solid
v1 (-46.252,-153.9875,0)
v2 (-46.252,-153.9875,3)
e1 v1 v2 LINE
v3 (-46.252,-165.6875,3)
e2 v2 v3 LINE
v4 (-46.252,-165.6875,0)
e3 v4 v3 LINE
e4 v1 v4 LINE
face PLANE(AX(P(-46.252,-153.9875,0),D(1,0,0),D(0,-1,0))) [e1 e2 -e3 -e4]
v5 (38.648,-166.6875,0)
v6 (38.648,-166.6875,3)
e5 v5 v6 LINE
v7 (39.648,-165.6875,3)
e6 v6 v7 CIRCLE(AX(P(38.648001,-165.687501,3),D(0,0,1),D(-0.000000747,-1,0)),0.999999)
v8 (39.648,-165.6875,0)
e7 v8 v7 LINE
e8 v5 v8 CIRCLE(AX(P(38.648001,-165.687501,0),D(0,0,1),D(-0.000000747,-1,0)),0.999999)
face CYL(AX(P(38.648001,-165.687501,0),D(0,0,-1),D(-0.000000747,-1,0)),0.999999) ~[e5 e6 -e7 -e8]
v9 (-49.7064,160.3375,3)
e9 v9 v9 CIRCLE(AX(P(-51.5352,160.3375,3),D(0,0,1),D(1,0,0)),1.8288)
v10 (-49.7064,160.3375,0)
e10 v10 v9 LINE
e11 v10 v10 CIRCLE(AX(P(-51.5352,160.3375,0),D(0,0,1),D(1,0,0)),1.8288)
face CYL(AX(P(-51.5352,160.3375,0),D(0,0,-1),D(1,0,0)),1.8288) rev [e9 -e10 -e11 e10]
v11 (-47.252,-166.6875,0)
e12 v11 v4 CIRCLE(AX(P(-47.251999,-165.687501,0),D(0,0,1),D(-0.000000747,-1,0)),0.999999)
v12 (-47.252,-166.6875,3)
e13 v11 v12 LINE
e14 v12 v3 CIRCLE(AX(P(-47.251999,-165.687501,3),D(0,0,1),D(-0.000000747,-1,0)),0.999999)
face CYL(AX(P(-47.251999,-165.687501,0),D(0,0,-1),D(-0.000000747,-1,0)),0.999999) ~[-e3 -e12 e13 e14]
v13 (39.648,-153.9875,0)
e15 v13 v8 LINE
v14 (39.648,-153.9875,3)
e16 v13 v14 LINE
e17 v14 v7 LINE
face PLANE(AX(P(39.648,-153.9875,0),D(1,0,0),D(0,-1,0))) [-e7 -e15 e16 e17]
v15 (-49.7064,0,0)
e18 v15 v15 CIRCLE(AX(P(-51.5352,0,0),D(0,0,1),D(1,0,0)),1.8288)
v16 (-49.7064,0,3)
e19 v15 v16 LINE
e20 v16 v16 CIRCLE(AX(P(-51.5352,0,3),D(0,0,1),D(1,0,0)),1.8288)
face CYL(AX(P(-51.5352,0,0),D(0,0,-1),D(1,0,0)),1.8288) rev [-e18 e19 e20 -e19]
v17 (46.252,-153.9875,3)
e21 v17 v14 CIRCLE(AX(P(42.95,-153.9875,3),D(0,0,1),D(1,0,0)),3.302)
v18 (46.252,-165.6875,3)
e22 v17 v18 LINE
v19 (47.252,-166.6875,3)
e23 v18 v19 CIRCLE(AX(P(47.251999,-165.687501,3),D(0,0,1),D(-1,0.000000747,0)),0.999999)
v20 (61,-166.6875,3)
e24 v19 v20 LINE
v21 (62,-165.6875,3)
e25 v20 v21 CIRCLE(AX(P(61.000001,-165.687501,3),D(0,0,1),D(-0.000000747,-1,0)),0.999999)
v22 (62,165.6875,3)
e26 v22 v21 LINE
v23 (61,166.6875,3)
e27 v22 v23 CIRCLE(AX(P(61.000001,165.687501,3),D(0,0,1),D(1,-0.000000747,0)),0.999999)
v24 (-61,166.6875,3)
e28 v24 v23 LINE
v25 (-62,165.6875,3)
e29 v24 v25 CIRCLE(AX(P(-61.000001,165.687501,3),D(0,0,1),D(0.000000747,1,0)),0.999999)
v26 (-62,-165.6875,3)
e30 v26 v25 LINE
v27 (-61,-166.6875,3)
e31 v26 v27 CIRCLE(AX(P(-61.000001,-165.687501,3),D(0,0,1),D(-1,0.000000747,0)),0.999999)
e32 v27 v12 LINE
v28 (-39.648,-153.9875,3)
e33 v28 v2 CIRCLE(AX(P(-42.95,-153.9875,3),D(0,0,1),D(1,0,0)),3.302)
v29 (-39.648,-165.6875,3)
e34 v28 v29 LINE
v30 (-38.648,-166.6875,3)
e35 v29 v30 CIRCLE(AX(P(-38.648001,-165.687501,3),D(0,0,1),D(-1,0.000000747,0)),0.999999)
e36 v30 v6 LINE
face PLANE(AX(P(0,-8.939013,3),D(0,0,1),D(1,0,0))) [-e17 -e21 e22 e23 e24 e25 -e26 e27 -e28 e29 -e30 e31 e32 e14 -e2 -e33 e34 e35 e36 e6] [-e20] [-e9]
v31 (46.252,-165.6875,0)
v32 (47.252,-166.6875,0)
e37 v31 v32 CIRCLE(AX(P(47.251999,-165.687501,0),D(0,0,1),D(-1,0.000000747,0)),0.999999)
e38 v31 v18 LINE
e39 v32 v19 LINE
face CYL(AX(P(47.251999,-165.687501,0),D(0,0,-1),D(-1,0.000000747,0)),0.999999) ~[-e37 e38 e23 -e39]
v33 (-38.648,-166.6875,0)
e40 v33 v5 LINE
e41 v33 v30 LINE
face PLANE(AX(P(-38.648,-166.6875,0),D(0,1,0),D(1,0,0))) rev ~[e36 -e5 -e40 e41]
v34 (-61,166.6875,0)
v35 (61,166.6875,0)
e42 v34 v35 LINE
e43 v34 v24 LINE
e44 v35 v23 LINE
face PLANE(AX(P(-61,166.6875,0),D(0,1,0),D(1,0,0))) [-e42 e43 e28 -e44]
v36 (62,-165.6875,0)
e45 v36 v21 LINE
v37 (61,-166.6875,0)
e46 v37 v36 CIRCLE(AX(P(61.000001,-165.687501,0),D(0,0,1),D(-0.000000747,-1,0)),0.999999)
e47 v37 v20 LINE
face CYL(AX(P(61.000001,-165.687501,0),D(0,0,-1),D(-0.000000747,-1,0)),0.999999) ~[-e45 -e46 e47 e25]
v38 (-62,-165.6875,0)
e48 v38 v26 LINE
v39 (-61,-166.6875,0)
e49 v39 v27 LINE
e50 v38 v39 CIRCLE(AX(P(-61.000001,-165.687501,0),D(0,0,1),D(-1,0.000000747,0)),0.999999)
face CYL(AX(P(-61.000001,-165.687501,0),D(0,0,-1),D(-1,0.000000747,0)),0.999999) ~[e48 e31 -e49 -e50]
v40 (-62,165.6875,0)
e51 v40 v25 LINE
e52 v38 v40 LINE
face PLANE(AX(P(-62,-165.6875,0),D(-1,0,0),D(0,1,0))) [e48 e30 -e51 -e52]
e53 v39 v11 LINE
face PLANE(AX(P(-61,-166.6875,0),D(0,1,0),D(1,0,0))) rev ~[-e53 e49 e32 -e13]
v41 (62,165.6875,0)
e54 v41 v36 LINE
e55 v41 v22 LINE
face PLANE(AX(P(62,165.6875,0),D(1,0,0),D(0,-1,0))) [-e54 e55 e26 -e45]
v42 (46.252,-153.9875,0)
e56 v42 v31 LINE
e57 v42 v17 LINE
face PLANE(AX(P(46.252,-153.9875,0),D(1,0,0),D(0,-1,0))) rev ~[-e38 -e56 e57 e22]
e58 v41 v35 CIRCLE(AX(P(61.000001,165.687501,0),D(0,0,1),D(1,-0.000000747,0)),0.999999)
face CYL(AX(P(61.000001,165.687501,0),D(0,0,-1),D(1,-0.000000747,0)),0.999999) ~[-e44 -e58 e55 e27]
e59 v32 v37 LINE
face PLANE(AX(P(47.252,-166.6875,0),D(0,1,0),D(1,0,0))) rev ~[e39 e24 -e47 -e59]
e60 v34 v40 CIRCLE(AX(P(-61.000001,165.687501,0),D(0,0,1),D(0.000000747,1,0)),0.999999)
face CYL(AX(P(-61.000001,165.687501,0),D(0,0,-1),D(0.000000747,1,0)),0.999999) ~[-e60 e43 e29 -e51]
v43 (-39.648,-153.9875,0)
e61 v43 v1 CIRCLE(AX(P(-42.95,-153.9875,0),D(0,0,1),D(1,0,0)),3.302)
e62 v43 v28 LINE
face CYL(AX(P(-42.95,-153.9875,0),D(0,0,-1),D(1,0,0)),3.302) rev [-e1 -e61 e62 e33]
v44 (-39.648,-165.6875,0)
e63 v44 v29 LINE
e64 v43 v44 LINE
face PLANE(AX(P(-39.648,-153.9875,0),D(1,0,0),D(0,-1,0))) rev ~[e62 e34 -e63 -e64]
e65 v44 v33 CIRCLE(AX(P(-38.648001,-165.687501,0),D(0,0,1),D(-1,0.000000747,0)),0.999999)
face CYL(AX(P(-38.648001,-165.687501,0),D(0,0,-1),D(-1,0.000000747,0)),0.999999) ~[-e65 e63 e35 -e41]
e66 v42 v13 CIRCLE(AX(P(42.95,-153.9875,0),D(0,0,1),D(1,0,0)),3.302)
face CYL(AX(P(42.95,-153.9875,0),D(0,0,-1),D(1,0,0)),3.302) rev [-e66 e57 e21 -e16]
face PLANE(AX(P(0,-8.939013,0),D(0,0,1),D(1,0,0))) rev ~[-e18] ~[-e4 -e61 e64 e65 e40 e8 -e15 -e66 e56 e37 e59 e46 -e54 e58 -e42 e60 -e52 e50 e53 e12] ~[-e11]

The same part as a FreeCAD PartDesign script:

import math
import FreeCAD as App
import Part
import Sketcher
Q = App.Units.Quantity

doc = App.newDocument("Part")
params = doc.addObject("Spreadsheet::Sheet", "Params")
for row, (alias, value) in enumerate([
    ("sketch1_radius", "0.999999 mm"),
    ("sketch1_width", "122 mm"),
    ("sketch1_height", "11.7 mm"),
    ("pad1_length", "3 mm"),
], start=1):
    params.set(f"A{row}", alias)
    params.set(f"B{row}", "=" + value)
    params.setAlias(f"B{row}", alias)

body = doc.addObject("PartDesign::Body", "Body")

# Sketch on XY plane
sketch1 = body.newObject("Sketcher::SketchObject", "Sketch")
sketch1.AttachmentSupport = (doc.getObject("XY_Plane"), [""])
sketch1.MapMode = "FlatFace"
sketch1.addGeometry(Part.ArcOfCircle(Part.Circle(App.Vector(-61.000001, 165.687501, 0), App.Vector(0, 0, 1), 0.999999), math.radians(89.999957), math.radians(180.000043)), False)
sketch1.addGeometry(Part.LineSegment(App.Vector(-62, 165.6875, 0), App.Vector(-62, -165.6875, 0)), False)
sketch1.addGeometry(Part.ArcOfCircle(Part.Circle(App.Vector(-61.000001, -165.687501, 0), App.Vector(0, 0, 1), 0.999999), math.radians(179.999957), math.radians(270.000043)), False)
sketch1.addGeometry(Part.LineSegment(App.Vector(-61, -166.6875, 0), App.Vector(-47.252, -166.6875, 0)), False)
sketch1.addGeometry(Part.ArcOfCircle(Part.Circle(App.Vector(-47.251999, -165.687501, 0), App.Vector(0, 0, 1), 0.999999), math.radians(-90.000043), math.radians(0.000043)), False)
sketch1.addGeometry(Part.LineSegment(App.Vector(-46.252, -165.6875, 0), App.Vector(-46.252, -153.9875, 0)), False)
sketch1.addGeometry(Part.ArcOfCircle(Part.Circle(App.Vector(-42.95, -153.9875, 0), App.Vector(0, 0, 1), 3.302), math.radians(0), math.radians(180)), False)
sketch1.addGeometry(Part.LineSegment(App.Vector(-39.648, -153.9875, 0), App.Vector(-39.648, -165.6875, 0)), False)
sketch1.addGeometry(Part.ArcOfCircle(Part.Circle(App.Vector(-38.648001, -165.687501, 0), App.Vector(0, 0, 1), 0.999999), math.radians(179.999957), math.radians(270.000043)), False)
sketch1.addGeometry(Part.LineSegment(App.Vector(-38.648, -166.6875, 0), App.Vector(38.648, -166.6875, 0)), False)
sketch1.addGeometry(Part.ArcOfCircle(Part.Circle(App.Vector(38.648001, -165.687501, 0), App.Vector(0, 0, 1), 0.999999), math.radians(-90.000043), math.radians(0.000043)), False)
sketch1.addGeometry(Part.LineSegment(App.Vector(39.648, -165.6875, 0), App.Vector(39.648, -153.9875, 0)), False)
sketch1.addGeometry(Part.ArcOfCircle(Part.Circle(App.Vector(42.95, -153.9875, 0), App.Vector(0, 0, 1), 3.302), math.radians(0), math.radians(180)), False)
sketch1.addGeometry(Part.LineSegment(App.Vector(46.252, -153.9875, 0), App.Vector(46.252, -165.6875, 0)), False)
sketch1.addGeometry(Part.ArcOfCircle(Part.Circle(App.Vector(47.251999, -165.687501, 0), App.Vector(0, 0, 1), 0.999999), math.radians(179.999957), math.radians(270.000043)), False)
sketch1.addGeometry(Part.LineSegment(App.Vector(47.252, -166.6875, 0), App.Vector(61, -166.6875, 0)), False)
sketch1.addGeometry(Part.ArcOfCircle(Part.Circle(App.Vector(61.000001, -165.687501, 0), App.Vector(0, 0, 1), 0.999999), math.radians(-90.000043), math.radians(0.000043)), False)
sketch1.addGeometry(Part.LineSegment(App.Vector(62, -165.6875, 0), App.Vector(62, 165.6875, 0)), False)
sketch1.addGeometry(Part.ArcOfCircle(Part.Circle(App.Vector(61.000001, 165.687501, 0), App.Vector(0, 0, 1), 0.999999), math.radians(-0.000043), math.radians(90.000043)), False)
sketch1.addGeometry(Part.LineSegment(App.Vector(61, 166.6875, 0), App.Vector(-61, 166.6875, 0)), False)
sketch1.addGeometry(Part.Circle(App.Vector(-51.5352, 0, 0), App.Vector(0, 0, 1), 1.8288), False)
sketch1.addGeometry(Part.Circle(App.Vector(-51.5352, 160.3375, 0), App.Vector(0, 0, 1), 1.8288), False)
sketch1.addConstraint(Sketcher.Constraint("Tangent", 0, 2, 1, 1))
sketch1.addConstraint(Sketcher.Constraint("Tangent", 1, 2, 2, 1))
sketch1.addConstraint(Sketcher.Constraint("Tangent", 2, 2, 3, 1))
sketch1.addConstraint(Sketcher.Constraint("Tangent", 3, 2, 4, 1))
sketch1.addConstraint(Sketcher.Constraint("Tangent", 4, 2, 5, 1))
sketch1.addConstraint(Sketcher.Constraint("Tangent", 5, 2, 6, 2))
sketch1.addConstraint(Sketcher.Constraint("Tangent", 6, 1, 7, 1))
sketch1.addConstraint(Sketcher.Constraint("Tangent", 7, 2, 8, 1))
sketch1.addConstraint(Sketcher.Constraint("Tangent", 8, 2, 9, 1))
sketch1.addConstraint(Sketcher.Constraint("Tangent", 9, 2, 10, 1))
sketch1.addConstraint(Sketcher.Constraint("Tangent", 10, 2, 11, 1))
sketch1.addConstraint(Sketcher.Constraint("Tangent", 11, 2, 12, 2))
sketch1.addConstraint(Sketcher.Constraint("Tangent", 12, 1, 13, 1))
sketch1.addConstraint(Sketcher.Constraint("Tangent", 13, 2, 14, 1))
sketch1.addConstraint(Sketcher.Constraint("Tangent", 14, 2, 15, 1))
sketch1.addConstraint(Sketcher.Constraint("Tangent", 15, 2, 16, 1))
sketch1.addConstraint(Sketcher.Constraint("Tangent", 16, 2, 17, 1))
sketch1.addConstraint(Sketcher.Constraint("Tangent", 17, 2, 18, 1))
sketch1.addConstraint(Sketcher.Constraint("Tangent", 18, 2, 19, 1))
sketch1.addConstraint(Sketcher.Constraint("Tangent", 19, 2, 0, 1))
sketch1.addConstraint(Sketcher.Constraint("Vertical", 1))
sketch1.addConstraint(Sketcher.Constraint("Horizontal", 3))
sketch1.addConstraint(Sketcher.Constraint("Vertical", 5))
sketch1.addConstraint(Sketcher.Constraint("Vertical", 7))
sketch1.addConstraint(Sketcher.Constraint("Horizontal", 9))
sketch1.addConstraint(Sketcher.Constraint("Vertical", 11))
sketch1.addConstraint(Sketcher.Constraint("Vertical", 13))
sketch1.addConstraint(Sketcher.Constraint("Horizontal", 15))
sketch1.addConstraint(Sketcher.Constraint("Vertical", 17))
sketch1.addConstraint(Sketcher.Constraint("Horizontal", 19))
sketch1.addConstraint(Sketcher.Constraint("Equal", 0, 2))
sketch1.addConstraint(Sketcher.Constraint("Equal", 2, 4))
sketch1.addConstraint(Sketcher.Constraint("Equal", 4, 8))
sketch1.addConstraint(Sketcher.Constraint("Equal", 8, 10))
sketch1.addConstraint(Sketcher.Constraint("Equal", 6, 12))
sketch1.addConstraint(Sketcher.Constraint("Equal", 10, 14))
sketch1.addConstraint(Sketcher.Constraint("Equal", 14, 16))
sketch1.addConstraint(Sketcher.Constraint("Equal", 16, 18))
sketch1.addConstraint(Sketcher.Constraint("Equal", 20, 21))
sketch1.addConstraint(Sketcher.Constraint("Symmetric", 0, 3, 16, 3, -1, 1))
sketch1.addConstraint(Sketcher.Constraint("Symmetric", 6, 3, 12, 3, -2))
sketch1.addConstraint(Sketcher.Constraint("PointOnObject", 20, 3, -1))
sketch1.addConstraint(Sketcher.Constraint("Horizontal", 4, 3, 8, 3))
sketch1.addConstraint(Sketcher.Constraint("Horizontal", 10, 3, 14, 3))
sketch1.addConstraint(Sketcher.Constraint("Vertical", 20, 3, 21, 3))
sketch1.addConstraint(Sketcher.Constraint("Radius", 0, Q("0.999999 mm")))
sketch1.addConstraint(Sketcher.Constraint("DistanceX", 19, 2, 19, 1, Q("122 mm")))
sketch1.addConstraint(Sketcher.Constraint("DistanceY", 5, 1, 5, 2, Q("11.7 mm")))
sketch1.addConstraint(Sketcher.Constraint("Radius", 6, Q("3.302 mm")))
sketch1.addConstraint(Sketcher.Constraint("Diameter", 20, Q("3.6576 mm")))
sketch1.addConstraint(Sketcher.Constraint("DistanceX", 4, 3, 10, 3, Q("85.9 mm")))
sketch1.addConstraint(Sketcher.Constraint("DistanceY", 1, 2, 1, 1, Q("331.375 mm")))
sketch1.addConstraint(Sketcher.Constraint("DistanceY", 21, 3, 0, 3, Q("5.350001 mm")))
sketch1.addConstraint(Sketcher.Constraint("DistanceX", 20, 3, -1, 1, Q("51.5352 mm")))
sketch1.setExpression("Constraints[45]", "Params.sketch1_radius")
sketch1.setExpression("Constraints[46]", "Params.sketch1_width")
sketch1.setExpression("Constraints[47]", "Params.sketch1_height")
pad1 = body.newObject("PartDesign::Pad", "Pad")
pad1.Profile = sketch1
pad1.setExpression("Length", "Params.pad1_length")

doc.recompute()
